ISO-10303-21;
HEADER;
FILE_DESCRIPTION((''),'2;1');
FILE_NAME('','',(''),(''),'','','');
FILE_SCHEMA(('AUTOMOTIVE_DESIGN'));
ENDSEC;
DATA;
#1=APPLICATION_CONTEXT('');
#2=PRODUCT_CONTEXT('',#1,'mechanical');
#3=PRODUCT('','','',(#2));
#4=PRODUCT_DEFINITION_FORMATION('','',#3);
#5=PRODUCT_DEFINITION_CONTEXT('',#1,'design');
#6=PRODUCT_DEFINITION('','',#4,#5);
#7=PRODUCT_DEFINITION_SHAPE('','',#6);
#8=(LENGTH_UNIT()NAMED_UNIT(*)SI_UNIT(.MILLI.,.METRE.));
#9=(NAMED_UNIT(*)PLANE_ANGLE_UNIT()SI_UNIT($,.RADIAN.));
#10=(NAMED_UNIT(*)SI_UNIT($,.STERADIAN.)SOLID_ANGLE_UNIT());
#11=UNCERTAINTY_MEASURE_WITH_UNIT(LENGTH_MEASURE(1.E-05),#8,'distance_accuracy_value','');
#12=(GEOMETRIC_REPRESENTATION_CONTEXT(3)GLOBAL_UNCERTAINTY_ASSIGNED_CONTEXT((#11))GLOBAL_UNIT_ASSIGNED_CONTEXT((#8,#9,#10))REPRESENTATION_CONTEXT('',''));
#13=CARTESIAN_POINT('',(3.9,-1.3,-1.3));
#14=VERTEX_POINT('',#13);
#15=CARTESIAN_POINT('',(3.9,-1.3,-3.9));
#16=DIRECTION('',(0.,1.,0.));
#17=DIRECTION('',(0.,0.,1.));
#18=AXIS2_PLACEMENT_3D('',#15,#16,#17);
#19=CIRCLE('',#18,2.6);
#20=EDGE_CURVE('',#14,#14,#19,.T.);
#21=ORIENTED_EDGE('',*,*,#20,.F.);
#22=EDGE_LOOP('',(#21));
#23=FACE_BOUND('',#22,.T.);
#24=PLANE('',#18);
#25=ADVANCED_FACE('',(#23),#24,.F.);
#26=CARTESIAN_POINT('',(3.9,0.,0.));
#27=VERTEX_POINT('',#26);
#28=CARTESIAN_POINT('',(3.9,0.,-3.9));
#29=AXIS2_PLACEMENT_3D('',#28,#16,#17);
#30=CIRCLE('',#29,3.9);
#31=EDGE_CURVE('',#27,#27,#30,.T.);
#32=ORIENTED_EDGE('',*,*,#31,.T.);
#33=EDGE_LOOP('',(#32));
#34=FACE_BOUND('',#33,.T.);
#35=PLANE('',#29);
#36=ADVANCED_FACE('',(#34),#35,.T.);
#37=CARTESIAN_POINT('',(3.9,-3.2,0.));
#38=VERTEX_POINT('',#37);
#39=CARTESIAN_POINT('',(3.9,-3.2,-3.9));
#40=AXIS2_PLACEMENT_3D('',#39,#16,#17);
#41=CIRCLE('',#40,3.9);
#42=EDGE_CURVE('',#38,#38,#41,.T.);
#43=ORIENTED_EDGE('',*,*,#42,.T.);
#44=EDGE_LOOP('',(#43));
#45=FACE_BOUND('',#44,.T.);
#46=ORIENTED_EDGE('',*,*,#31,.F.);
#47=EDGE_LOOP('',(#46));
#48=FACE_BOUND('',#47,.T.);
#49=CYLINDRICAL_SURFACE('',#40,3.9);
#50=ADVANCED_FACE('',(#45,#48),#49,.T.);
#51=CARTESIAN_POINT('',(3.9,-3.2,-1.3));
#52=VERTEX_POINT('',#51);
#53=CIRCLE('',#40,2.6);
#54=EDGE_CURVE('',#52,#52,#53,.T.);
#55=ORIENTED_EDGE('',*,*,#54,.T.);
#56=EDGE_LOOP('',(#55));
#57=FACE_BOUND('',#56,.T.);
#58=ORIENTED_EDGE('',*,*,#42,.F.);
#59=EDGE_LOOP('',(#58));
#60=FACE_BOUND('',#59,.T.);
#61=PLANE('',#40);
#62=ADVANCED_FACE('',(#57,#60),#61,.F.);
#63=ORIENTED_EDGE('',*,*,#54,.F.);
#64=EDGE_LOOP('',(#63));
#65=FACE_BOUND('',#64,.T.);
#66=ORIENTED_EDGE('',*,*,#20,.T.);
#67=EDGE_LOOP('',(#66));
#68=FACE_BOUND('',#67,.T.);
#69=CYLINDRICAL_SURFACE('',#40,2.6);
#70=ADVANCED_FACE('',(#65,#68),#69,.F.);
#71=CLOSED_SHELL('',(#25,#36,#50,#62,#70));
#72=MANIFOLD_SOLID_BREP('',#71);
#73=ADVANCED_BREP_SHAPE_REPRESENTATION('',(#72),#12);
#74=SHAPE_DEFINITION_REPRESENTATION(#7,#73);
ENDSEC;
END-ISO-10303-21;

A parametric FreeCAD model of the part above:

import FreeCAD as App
import Part
import Sketcher
Q = App.Units.Quantity


def faces_at(feature, points):
    """Names of the faces that lie closest to the given points."""
    faces = feature.Shape.Faces
    near = lambda p: min(range(len(faces)), key=lambda i: faces[i].distToShape(Part.Vertex(*p))[0])
    return sorted({f"Face{near(p) + 1}" for p in points})

doc = App.newDocument("Part")
body = doc.addObject("PartDesign::Body", "Body")

# Sketch on XZ plane
sketch1 = doc.addObject("Sketcher::SketchObject", "Sketch")
body.addObject(sketch1)
sketch1.AttachmentSupport = (doc.XZ_Plane, [""])
sketch1.MapMode = "FlatFace"
sketch1.addGeometry(Part.Circle(App.Vector(3.9, -3.9, 0), App.Vector(0, 0, 1), 3.9), False)
sketch1.addConstraint([
    Sketcher.Constraint("Diameter", 0, Q("7.8 mm")),
    Sketcher.Constraint("DistanceX", -1, 1, 0, 3, Q("3.9 mm")),
    Sketcher.Constraint("DistanceY", 0, 3, -1, 1, Q("3.9 mm")),
])
pad1 = doc.addObject("PartDesign::Pad", "Pad")
body.addObject(pad1)
pad1.Profile = sketch1
pad1.Length = 3.2
doc.recompute()

thickness = doc.addObject("PartDesign::Thickness", "Thickness")
body.addObject(thickness)
thickness.Base = (pad1, faces_at(pad1, [(3.9, -3.2, -3.9)]))
thickness.Value = 1.3
thickness.Reversed = True
thickness.Join = "Intersection"

doc.recompute()
